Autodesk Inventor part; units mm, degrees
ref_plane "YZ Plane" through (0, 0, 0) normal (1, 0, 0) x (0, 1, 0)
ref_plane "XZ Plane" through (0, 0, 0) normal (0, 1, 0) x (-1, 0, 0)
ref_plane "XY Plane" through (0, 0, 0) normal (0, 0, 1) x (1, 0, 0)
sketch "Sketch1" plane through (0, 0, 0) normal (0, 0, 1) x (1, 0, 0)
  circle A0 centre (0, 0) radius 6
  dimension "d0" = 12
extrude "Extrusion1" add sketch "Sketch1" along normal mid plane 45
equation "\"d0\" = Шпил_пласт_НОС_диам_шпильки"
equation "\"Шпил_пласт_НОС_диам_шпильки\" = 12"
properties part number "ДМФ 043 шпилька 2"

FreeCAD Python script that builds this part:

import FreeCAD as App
import Part
import Sketcher

doc = App.newDocument("Part")
body = doc.addObject("PartDesign::Body", "Body")

# Sketch on XY plane
sketch1 = body.newObject("Sketcher::SketchObject", "Sketch")
sketch1.AttachmentSupport = (doc.getObject("XY_Plane"), [""])
sketch1.MapMode = "FlatFace"
sketch1.addGeometry(Part.Circle(App.Vector(0, 0, 0), App.Vector(0, 0, 1), 6), False)
sketch1.addConstraint(Sketcher.Constraint("Coincident", 0, 3, -1, 1))
sketch1.addConstraint(Sketcher.Constraint("Diameter", 0, 12.0))
pad1 = body.newObject("PartDesign::Pad", "Pad")
pad1.Profile = sketch1
pad1.Length = 45
pad1.Midplane = True

doc.recompute()
